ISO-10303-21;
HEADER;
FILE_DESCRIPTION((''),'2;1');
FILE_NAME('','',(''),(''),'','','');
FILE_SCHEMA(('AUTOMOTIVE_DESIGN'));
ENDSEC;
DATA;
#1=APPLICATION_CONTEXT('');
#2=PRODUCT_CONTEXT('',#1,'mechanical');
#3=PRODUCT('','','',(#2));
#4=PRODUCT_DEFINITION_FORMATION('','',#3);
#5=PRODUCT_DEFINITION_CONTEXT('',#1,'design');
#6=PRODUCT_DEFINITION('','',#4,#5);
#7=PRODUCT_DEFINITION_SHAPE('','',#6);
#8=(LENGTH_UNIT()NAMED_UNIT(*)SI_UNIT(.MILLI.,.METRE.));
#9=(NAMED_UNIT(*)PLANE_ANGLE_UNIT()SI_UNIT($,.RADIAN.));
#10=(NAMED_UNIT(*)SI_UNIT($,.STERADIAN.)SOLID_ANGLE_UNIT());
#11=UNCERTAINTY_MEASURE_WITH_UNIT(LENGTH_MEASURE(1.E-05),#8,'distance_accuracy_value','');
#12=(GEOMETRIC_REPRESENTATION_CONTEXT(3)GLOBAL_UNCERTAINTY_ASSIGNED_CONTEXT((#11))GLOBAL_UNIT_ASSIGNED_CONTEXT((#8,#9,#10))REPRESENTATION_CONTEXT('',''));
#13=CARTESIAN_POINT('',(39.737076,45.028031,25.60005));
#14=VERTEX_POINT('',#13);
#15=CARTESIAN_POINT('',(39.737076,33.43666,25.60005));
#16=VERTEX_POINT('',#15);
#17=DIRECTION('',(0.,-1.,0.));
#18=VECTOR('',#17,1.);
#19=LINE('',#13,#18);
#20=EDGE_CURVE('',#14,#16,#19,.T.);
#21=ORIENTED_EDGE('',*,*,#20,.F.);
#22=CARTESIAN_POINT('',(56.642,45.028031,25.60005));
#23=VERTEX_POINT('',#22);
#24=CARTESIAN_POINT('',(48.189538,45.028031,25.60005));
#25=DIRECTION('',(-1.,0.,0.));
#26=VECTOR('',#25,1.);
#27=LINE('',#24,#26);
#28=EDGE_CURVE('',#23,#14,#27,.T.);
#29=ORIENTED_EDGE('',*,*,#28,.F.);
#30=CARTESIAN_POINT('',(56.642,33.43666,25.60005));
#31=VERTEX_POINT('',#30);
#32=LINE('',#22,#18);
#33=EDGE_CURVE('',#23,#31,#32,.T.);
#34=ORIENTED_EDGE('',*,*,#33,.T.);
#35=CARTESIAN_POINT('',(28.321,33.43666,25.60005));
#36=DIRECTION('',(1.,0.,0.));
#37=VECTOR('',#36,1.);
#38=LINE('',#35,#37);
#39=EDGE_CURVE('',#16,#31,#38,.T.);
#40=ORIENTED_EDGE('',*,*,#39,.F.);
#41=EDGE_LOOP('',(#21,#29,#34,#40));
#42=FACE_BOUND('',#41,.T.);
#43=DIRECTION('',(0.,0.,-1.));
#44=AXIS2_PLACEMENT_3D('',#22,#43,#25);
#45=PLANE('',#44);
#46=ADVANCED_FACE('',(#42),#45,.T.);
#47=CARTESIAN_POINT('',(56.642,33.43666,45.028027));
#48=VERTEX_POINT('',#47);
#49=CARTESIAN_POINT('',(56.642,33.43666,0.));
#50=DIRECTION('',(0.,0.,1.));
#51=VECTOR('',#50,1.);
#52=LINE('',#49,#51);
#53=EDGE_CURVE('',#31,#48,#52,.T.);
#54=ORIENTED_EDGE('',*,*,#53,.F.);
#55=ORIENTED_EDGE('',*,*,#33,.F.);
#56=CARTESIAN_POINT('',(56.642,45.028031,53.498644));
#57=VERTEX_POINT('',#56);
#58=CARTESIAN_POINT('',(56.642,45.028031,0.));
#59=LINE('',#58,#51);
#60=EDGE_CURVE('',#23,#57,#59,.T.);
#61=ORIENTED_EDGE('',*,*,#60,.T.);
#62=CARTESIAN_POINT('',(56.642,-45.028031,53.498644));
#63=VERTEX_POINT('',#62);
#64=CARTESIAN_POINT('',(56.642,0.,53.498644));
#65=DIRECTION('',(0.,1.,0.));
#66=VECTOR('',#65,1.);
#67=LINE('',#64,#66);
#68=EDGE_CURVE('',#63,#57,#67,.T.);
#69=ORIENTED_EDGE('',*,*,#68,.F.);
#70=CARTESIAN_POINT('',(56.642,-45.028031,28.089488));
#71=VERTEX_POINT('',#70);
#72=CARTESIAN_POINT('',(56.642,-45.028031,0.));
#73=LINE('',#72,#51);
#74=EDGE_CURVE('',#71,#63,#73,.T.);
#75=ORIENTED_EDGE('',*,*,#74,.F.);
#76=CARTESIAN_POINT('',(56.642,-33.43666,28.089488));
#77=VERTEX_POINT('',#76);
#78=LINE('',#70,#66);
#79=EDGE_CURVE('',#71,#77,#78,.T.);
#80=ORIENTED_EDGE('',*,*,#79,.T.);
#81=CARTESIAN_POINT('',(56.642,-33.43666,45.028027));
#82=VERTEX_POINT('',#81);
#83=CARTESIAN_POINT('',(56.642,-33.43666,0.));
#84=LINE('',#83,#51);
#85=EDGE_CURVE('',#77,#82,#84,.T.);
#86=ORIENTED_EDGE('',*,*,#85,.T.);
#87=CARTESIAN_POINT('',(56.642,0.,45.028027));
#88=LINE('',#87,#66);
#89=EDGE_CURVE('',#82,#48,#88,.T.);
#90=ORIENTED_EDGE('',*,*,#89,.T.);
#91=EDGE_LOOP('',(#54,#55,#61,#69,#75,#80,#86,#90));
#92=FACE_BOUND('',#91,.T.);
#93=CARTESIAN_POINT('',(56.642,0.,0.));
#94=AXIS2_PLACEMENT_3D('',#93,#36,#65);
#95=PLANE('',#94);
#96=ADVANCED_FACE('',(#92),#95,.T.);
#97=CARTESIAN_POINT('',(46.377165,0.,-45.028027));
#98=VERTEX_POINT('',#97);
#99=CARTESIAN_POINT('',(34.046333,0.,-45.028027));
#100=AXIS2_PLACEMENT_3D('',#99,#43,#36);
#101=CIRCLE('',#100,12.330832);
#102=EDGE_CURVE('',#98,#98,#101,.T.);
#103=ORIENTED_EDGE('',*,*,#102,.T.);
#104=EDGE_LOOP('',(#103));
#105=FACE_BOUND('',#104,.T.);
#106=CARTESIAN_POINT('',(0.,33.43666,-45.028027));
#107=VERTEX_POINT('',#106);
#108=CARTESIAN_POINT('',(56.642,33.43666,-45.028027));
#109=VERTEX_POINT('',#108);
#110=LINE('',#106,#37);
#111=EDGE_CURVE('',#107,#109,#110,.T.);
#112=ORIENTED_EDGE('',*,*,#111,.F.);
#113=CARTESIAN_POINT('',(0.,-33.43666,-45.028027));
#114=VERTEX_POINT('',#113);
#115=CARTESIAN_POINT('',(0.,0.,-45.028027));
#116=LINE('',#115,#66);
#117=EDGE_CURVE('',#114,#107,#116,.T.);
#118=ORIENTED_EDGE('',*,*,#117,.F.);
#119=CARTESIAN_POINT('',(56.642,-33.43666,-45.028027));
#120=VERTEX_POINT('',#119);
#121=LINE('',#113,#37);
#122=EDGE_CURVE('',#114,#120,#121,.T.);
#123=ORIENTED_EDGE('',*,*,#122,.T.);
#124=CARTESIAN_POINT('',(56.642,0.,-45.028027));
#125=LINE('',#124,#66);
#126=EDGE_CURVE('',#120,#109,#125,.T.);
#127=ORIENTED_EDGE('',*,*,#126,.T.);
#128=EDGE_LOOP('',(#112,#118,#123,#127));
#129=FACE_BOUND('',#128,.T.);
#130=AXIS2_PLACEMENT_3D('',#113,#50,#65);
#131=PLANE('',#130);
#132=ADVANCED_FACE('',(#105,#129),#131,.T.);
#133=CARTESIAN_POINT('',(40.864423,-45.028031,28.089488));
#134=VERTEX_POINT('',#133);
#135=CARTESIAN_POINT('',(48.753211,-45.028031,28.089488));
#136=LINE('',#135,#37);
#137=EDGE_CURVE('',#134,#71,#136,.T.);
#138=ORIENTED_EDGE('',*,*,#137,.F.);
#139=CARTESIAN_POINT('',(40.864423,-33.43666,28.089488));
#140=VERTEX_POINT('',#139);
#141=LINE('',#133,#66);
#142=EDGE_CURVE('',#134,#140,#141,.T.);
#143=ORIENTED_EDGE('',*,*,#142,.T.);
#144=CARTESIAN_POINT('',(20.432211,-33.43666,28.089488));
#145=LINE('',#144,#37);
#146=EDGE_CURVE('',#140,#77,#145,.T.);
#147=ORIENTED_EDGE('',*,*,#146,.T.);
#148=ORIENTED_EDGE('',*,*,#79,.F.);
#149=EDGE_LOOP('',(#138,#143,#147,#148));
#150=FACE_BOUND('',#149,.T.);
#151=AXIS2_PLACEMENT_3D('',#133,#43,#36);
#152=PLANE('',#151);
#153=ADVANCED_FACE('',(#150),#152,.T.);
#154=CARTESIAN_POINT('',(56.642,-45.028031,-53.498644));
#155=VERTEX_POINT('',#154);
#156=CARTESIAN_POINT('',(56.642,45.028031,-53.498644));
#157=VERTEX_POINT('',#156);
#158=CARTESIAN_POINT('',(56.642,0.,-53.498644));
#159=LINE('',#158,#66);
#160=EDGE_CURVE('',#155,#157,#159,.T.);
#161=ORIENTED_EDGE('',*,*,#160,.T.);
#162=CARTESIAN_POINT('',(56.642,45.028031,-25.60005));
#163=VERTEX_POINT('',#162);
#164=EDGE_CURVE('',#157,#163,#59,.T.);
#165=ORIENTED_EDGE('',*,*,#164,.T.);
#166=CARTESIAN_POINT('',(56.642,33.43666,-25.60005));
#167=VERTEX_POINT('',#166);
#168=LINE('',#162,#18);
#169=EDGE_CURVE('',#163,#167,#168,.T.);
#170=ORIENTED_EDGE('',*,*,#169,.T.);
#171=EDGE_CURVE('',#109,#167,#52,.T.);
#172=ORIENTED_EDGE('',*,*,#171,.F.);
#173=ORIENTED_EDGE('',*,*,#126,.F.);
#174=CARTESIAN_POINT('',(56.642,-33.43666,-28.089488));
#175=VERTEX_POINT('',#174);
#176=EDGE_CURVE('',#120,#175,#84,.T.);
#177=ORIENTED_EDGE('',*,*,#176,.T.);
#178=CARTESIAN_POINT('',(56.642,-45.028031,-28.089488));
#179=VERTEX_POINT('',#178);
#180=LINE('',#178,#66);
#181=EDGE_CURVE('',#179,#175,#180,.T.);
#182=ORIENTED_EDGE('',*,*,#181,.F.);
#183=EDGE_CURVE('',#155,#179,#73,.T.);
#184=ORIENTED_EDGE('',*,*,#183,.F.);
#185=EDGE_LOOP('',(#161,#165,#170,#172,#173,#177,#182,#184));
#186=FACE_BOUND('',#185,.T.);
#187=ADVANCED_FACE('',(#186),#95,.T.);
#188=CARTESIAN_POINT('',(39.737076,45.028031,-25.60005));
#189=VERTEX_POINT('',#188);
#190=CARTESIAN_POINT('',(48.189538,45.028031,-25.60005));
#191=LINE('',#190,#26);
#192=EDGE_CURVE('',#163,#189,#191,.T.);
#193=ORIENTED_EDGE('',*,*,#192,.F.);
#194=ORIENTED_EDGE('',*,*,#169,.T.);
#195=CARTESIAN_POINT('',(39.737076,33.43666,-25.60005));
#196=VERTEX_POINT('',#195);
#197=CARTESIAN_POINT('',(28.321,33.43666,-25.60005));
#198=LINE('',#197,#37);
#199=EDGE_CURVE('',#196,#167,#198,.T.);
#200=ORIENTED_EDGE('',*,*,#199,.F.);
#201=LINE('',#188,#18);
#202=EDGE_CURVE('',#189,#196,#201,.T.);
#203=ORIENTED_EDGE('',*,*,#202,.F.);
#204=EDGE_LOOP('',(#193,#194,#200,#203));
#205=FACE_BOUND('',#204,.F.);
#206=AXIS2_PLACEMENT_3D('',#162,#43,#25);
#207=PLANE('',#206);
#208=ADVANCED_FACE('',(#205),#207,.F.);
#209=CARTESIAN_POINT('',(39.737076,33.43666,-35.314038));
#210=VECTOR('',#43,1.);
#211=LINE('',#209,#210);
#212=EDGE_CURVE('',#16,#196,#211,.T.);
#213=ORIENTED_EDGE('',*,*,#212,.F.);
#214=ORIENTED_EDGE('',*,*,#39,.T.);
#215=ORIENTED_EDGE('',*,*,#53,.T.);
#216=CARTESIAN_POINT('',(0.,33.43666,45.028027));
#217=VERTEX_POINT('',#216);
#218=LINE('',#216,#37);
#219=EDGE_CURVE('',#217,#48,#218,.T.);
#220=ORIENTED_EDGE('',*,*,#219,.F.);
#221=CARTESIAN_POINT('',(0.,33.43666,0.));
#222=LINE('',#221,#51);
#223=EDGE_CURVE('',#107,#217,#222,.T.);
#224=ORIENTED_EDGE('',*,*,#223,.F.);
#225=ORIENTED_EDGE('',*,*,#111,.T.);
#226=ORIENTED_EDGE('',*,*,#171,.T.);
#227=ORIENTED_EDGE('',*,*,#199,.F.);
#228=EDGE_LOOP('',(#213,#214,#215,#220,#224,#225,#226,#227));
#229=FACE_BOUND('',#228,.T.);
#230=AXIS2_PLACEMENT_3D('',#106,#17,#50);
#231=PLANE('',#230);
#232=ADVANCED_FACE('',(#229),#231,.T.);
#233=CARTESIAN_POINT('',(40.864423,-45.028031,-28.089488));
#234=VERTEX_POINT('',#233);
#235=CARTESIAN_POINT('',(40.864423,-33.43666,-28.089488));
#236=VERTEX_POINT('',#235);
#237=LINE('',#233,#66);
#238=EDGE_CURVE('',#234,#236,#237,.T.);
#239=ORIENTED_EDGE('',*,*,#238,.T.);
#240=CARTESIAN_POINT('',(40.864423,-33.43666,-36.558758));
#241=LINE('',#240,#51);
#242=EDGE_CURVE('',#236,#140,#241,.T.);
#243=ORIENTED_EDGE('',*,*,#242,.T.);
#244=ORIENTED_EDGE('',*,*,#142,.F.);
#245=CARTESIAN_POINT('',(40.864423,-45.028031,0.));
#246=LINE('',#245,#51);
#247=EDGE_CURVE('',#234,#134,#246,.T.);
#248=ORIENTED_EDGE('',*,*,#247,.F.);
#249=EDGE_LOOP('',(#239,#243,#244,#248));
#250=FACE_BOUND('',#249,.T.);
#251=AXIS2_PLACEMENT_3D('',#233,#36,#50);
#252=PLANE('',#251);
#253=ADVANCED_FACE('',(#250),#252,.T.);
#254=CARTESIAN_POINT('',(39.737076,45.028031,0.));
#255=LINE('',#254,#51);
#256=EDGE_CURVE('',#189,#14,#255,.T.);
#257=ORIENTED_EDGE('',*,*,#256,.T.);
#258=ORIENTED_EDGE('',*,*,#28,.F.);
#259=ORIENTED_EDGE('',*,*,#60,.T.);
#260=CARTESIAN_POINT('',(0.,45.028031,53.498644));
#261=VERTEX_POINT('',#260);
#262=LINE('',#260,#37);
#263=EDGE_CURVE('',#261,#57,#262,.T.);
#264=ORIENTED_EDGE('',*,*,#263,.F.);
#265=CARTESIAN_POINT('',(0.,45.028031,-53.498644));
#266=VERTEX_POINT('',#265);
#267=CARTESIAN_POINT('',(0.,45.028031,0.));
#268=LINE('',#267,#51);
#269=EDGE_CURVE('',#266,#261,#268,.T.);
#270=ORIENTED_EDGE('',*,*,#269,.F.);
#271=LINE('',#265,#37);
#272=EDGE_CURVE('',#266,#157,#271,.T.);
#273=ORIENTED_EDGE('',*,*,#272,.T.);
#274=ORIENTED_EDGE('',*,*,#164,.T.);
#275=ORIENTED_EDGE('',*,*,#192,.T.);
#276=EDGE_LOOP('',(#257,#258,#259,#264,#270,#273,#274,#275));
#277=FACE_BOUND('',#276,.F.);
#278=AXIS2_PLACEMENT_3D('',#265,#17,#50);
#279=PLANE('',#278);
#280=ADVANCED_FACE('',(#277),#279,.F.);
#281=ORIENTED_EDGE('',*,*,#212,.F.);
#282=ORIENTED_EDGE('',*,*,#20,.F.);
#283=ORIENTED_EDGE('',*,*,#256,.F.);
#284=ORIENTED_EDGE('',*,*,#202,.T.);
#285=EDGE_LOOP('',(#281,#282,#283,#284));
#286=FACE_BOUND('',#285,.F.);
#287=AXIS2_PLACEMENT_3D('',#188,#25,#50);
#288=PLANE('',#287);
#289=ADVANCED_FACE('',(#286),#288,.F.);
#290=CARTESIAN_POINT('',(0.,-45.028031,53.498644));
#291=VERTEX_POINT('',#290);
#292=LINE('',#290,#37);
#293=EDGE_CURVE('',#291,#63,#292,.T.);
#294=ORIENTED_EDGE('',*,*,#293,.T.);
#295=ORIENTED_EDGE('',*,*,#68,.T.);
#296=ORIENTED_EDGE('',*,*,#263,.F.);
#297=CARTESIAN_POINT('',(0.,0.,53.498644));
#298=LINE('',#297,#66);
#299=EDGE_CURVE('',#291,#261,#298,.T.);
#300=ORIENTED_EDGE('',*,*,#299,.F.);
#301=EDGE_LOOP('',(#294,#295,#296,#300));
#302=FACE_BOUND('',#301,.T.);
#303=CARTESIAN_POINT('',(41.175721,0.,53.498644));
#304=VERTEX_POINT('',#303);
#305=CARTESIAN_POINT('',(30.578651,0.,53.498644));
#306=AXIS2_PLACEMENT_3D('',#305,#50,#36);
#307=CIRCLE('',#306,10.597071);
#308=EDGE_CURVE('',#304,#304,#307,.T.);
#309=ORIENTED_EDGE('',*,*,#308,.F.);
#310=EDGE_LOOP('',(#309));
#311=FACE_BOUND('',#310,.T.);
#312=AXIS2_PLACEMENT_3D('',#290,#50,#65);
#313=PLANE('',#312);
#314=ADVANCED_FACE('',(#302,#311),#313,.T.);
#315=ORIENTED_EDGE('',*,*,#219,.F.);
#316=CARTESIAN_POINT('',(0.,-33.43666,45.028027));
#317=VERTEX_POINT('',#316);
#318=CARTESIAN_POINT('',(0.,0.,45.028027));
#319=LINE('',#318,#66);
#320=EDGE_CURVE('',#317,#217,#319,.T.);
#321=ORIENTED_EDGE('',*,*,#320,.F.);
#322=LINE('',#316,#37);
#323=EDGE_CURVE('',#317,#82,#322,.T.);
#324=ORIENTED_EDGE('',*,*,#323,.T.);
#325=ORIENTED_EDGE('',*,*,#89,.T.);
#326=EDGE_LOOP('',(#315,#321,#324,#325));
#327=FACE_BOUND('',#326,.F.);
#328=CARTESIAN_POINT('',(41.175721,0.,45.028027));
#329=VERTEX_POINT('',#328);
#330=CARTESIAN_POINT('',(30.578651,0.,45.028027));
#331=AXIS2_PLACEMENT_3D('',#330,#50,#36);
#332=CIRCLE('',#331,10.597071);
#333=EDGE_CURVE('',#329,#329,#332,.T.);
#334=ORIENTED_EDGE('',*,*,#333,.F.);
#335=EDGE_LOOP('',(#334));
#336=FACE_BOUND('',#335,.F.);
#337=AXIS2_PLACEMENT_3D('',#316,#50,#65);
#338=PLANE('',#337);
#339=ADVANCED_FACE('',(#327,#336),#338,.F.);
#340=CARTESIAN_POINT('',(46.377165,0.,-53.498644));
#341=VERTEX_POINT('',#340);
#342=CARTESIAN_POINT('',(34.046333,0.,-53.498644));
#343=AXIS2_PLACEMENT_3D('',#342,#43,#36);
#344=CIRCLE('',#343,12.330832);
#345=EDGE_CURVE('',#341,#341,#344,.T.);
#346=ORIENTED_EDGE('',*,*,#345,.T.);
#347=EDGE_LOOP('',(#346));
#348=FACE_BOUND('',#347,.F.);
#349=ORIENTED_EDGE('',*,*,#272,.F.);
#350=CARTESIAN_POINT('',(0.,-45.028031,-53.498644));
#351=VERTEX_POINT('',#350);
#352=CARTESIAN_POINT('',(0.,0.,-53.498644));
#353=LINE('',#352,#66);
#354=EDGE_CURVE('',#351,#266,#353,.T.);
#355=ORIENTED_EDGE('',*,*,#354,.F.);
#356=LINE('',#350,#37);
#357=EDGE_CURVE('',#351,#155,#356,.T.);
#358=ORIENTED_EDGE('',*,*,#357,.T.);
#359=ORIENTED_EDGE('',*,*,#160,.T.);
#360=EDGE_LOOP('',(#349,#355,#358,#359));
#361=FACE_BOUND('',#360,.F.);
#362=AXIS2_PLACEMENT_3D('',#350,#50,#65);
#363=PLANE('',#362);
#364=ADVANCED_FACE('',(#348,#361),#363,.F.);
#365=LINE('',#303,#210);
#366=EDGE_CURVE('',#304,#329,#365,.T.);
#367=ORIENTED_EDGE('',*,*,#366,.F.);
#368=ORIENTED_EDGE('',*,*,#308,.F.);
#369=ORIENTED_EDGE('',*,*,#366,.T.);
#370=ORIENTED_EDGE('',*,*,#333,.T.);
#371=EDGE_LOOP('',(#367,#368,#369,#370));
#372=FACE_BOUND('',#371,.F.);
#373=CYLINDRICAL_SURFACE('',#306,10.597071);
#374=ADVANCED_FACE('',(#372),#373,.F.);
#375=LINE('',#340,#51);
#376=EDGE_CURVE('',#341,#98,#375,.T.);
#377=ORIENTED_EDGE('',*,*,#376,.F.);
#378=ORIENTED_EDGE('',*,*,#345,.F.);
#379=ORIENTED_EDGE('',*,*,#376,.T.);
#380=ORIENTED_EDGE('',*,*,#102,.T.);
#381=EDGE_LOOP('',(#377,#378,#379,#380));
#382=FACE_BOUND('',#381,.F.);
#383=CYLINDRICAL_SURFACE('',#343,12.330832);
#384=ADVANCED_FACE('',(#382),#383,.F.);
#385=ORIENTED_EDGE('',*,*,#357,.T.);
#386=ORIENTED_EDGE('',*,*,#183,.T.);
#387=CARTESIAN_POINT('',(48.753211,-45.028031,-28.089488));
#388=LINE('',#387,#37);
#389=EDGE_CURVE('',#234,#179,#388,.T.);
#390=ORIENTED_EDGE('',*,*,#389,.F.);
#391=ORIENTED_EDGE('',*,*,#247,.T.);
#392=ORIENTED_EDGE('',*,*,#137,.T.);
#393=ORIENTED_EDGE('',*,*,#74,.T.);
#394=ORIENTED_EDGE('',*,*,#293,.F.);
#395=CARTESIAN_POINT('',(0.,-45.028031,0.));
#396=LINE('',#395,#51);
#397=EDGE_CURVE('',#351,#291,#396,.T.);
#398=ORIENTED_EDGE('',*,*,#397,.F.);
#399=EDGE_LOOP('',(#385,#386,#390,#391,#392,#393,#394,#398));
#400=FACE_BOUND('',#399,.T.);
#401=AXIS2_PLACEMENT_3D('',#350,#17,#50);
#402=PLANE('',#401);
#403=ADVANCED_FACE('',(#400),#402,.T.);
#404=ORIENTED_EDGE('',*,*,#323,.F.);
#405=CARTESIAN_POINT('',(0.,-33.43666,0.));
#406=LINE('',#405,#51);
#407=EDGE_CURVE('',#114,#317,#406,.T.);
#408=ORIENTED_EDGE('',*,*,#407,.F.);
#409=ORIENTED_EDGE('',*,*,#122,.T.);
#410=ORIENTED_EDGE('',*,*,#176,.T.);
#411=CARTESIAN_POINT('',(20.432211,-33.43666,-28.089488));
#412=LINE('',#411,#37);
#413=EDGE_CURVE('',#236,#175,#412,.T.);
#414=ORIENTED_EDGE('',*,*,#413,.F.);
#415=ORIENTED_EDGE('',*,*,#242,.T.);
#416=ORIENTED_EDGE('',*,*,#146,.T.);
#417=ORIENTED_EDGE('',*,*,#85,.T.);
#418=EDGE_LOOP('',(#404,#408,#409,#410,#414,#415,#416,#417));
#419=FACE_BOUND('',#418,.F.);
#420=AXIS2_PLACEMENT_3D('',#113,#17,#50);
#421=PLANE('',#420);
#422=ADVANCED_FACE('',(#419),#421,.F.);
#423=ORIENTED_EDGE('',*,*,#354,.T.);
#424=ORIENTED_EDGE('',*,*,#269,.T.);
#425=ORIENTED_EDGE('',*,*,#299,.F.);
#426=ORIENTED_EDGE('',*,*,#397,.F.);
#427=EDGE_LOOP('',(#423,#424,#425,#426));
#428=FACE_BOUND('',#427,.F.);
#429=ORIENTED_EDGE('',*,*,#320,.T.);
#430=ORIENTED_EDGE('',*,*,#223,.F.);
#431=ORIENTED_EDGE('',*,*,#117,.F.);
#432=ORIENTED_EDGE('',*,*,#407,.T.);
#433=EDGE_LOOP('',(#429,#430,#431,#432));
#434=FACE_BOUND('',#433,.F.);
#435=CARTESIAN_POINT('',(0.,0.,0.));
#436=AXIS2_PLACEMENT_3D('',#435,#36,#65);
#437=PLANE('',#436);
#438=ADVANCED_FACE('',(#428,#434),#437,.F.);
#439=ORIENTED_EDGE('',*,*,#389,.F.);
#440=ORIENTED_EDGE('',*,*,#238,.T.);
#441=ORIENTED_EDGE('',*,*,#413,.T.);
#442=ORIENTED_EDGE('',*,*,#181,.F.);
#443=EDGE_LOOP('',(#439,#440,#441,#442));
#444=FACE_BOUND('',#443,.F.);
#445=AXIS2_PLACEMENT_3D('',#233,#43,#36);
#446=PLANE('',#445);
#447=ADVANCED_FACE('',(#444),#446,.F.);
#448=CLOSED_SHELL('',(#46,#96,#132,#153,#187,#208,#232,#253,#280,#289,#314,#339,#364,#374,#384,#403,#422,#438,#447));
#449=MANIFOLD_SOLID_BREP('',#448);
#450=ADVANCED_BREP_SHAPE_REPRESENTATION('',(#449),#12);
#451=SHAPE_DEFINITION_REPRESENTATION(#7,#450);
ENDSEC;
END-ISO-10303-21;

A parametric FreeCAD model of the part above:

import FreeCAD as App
import Part
import Sketcher

V = App.Vector
Q = App.Units.Quantity


def add_polygon(sketch, points):
    """Adds a closed chain of lines whose ends are joined by coincident constraints."""
    first, n = sketch.GeometryCount, len(points)
    for a, b in zip(points, points[1:] + points[:1]):
        sketch.addGeometry(Part.LineSegment(App.Vector(*a, 0), App.Vector(*b, 0)), False)
    for i in range(n):
        sketch.addConstraint(Sketcher.Constraint("Coincident", first + i, 2, first + (i + 1) % n, 1))

doc = App.newDocument("Part")
params = doc.addObject("Spreadsheet::Sheet", "Params")
for row, (alias, value) in enumerate([
    ("pad1_length", "2.23 in"),
    ("pocket1_length", "1 in"),
    ("pocket2_length", "1 in"),
    ("pocket3_length", "1 in"),
    ("pocket4_length", "1 in"),
], start=1):
    params.set(f"A{row}", alias)
    params.set(f"B{row}", "=" + value)
    params.setAlias(f"B{row}", alias)

body = doc.addObject("PartDesign::Body", "Body")

sketch1 = body.newObject("Sketcher::SketchObject", "Sketch")
sketch1.AttachmentSupport = (doc.getObject("YZ_Plane"), [""])
sketch1.MapMode = "FlatFace"
add_polygon(sketch1, [(-45.028031, 53.498644), (-45.028031, -53.498644), (45.028031, -53.498644), (45.028031, 53.498644)])
add_polygon(sketch1, [(33.43666, -45.028027), (-33.43666, -45.028027), (-33.43666, 45.028027), (33.43666, 45.028027)])
sketch1.addConstraint([
    Sketcher.Constraint("Vertical", 0),
    Sketcher.Constraint("Horizontal", 1),
    Sketcher.Constraint("Vertical", 2),
    Sketcher.Constraint("Horizontal", 3),
    Sketcher.Constraint("Horizontal", 4),
    Sketcher.Constraint("Vertical", 5),
    Sketcher.Constraint("Horizontal", 6),
    Sketcher.Constraint("Vertical", 7),
    Sketcher.Constraint("Symmetric", 0, 2, 2, 2, -1, 1),
    Sketcher.Constraint("Symmetric", 4, 2, 6, 2, -1, 1),
    Sketcher.Constraint("DistanceX", 1, 1, 1, 2, Q("90.056062 mm")),
    Sketcher.Constraint("DistanceX", 4, 2, 4, 1, Q("66.873319 mm")),
    Sketcher.Constraint("DistanceY", 0, 2, 0, 1, Q("106.997289 mm")),
    Sketcher.Constraint("DistanceY", 5, 1, 5, 2, Q("90.056054 mm")),
])
pad1 = body.newObject("PartDesign::Pad", "Pad")
pad1.Profile = sketch1
pad1.setExpression("Length", "Params.pad1_length")

sketch2 = body.newObject("Sketcher::SketchObject", "Sketch001")
sketch2.AttachmentSupport = (doc.getObject("XZ_Plane"), [""])
sketch2.MapMode = "FlatFace"
sketch2.AttachmentOffset = App.Placement(V(0, 0, -45.028031), App.Rotation())
add_polygon(sketch2, [(56.642, 25.60005), (56.642, -25.60005), (39.737076, -25.60005), (39.737076, 25.60005)])
sketch2.addConstraint([
    Sketcher.Constraint("Vertical", 0),
    Sketcher.Constraint("Horizontal", 1),
    Sketcher.Constraint("Vertical", 2),
    Sketcher.Constraint("Horizontal", 3),
    Sketcher.Constraint("DistanceX", -1, 1, 0, 2, Q("2.23 in")),
    Sketcher.Constraint("DistanceY", 0, 2, 0, 1, Q("51.200099 mm")),
    Sketcher.Constraint("DistanceX", 1, 2, 1, 1, Q("16.904924 mm")),
    Sketcher.Constraint("DistanceY", 0, 2, -1, 1, Q("25.60005 mm")),
])
pocket1 = body.newObject("PartDesign::Pocket", "Pocket")
pocket1.Profile = sketch2
pocket1.setExpression("Length", "Params.pocket1_length")
pocket1.Reversed = True

sketch3 = body.newObject("Sketcher::SketchObject", "Sketch002")
sketch3.AttachmentSupport = (doc.getObject("XZ_Plane"), [""])
sketch3.MapMode = "FlatFace"
sketch3.AttachmentOffset = App.Placement(V(0, 0, 45.028031), App.Rotation())
add_polygon(sketch3, [(40.864423, 28.089488), (40.864423, -28.089488), (56.642, -28.089488), (56.642, 28.089488)])
sketch3.addConstraint([
    Sketcher.Constraint("Vertical", 0),
    Sketcher.Constraint("Horizontal", 1),
    Sketcher.Constraint("Vertical", 2),
    Sketcher.Constraint("Horizontal", 3),
    Sketcher.Constraint("DistanceX", -1, 1, 1, 2, Q("2.23 in")),
    Sketcher.Constraint("DistanceX", 1, 1, 1, 2, Q("15.777577 mm")),
    Sketcher.Constraint("DistanceY", 0, 2, 0, 1, Q("56.178976 mm")),
    Sketcher.Constraint("DistanceY", 0, 2, -1, 1, Q("28.089488 mm")),
])
pocket2 = body.newObject("PartDesign::Pocket", "Pocket001")
pocket2.Profile = sketch3
pocket2.setExpression("Length", "Params.pocket2_length")

sketch4 = body.newObject("Sketcher::SketchObject", "Sketch003")
sketch4.AttachmentSupport = (doc.getObject("XY_Plane"), [""])
sketch4.MapMode = "FlatFace"
sketch4.AttachmentOffset = App.Placement(V(0, 0, 53.498644), App.Rotation())
sketch4.addGeometry(Part.Circle(V(30.578651, 0, 0), V(0, 0, 1), 10.597071), False)
sketch4.addConstraint([
    Sketcher.Constraint("PointOnObject", 0, 3, -1),
    Sketcher.Constraint("Diameter", 0, Q("21.194142 mm")),
    Sketcher.Constraint("DistanceX", -1, 1, 0, 3, Q("30.578651 mm")),
])
pocket3 = body.newObject("PartDesign::Pocket", "Pocket002")
pocket3.Profile = sketch4
pocket3.setExpression("Length", "Params.pocket3_length")

sketch5 = body.newObject("Sketcher::SketchObject", "Sketch004")
sketch5.AttachmentSupport = (doc.getObject("XY_Plane"), [""])
sketch5.MapMode = "FlatFace"
sketch5.AttachmentOffset = App.Placement(V(0, 0, -53.498644), App.Rotation())
sketch5.addGeometry(Part.Circle(V(34.046333, 0, 0), V(0, 0, 1), 12.330832), False)
sketch5.addConstraint([
    Sketcher.Constraint("PointOnObject", 0, 3, -1),
    Sketcher.Constraint("Diameter", 0, Q("24.661663 mm")),
    Sketcher.Constraint("DistanceX", -1, 1, 0, 3, Q("34.046333 mm")),
])
pocket4 = body.newObject("PartDesign::Pocket", "Pocket003")
pocket4.Profile = sketch5
pocket4.setExpression("Length", "Params.pocket4_length")
pocket4.Reversed = True

doc.recompute()
